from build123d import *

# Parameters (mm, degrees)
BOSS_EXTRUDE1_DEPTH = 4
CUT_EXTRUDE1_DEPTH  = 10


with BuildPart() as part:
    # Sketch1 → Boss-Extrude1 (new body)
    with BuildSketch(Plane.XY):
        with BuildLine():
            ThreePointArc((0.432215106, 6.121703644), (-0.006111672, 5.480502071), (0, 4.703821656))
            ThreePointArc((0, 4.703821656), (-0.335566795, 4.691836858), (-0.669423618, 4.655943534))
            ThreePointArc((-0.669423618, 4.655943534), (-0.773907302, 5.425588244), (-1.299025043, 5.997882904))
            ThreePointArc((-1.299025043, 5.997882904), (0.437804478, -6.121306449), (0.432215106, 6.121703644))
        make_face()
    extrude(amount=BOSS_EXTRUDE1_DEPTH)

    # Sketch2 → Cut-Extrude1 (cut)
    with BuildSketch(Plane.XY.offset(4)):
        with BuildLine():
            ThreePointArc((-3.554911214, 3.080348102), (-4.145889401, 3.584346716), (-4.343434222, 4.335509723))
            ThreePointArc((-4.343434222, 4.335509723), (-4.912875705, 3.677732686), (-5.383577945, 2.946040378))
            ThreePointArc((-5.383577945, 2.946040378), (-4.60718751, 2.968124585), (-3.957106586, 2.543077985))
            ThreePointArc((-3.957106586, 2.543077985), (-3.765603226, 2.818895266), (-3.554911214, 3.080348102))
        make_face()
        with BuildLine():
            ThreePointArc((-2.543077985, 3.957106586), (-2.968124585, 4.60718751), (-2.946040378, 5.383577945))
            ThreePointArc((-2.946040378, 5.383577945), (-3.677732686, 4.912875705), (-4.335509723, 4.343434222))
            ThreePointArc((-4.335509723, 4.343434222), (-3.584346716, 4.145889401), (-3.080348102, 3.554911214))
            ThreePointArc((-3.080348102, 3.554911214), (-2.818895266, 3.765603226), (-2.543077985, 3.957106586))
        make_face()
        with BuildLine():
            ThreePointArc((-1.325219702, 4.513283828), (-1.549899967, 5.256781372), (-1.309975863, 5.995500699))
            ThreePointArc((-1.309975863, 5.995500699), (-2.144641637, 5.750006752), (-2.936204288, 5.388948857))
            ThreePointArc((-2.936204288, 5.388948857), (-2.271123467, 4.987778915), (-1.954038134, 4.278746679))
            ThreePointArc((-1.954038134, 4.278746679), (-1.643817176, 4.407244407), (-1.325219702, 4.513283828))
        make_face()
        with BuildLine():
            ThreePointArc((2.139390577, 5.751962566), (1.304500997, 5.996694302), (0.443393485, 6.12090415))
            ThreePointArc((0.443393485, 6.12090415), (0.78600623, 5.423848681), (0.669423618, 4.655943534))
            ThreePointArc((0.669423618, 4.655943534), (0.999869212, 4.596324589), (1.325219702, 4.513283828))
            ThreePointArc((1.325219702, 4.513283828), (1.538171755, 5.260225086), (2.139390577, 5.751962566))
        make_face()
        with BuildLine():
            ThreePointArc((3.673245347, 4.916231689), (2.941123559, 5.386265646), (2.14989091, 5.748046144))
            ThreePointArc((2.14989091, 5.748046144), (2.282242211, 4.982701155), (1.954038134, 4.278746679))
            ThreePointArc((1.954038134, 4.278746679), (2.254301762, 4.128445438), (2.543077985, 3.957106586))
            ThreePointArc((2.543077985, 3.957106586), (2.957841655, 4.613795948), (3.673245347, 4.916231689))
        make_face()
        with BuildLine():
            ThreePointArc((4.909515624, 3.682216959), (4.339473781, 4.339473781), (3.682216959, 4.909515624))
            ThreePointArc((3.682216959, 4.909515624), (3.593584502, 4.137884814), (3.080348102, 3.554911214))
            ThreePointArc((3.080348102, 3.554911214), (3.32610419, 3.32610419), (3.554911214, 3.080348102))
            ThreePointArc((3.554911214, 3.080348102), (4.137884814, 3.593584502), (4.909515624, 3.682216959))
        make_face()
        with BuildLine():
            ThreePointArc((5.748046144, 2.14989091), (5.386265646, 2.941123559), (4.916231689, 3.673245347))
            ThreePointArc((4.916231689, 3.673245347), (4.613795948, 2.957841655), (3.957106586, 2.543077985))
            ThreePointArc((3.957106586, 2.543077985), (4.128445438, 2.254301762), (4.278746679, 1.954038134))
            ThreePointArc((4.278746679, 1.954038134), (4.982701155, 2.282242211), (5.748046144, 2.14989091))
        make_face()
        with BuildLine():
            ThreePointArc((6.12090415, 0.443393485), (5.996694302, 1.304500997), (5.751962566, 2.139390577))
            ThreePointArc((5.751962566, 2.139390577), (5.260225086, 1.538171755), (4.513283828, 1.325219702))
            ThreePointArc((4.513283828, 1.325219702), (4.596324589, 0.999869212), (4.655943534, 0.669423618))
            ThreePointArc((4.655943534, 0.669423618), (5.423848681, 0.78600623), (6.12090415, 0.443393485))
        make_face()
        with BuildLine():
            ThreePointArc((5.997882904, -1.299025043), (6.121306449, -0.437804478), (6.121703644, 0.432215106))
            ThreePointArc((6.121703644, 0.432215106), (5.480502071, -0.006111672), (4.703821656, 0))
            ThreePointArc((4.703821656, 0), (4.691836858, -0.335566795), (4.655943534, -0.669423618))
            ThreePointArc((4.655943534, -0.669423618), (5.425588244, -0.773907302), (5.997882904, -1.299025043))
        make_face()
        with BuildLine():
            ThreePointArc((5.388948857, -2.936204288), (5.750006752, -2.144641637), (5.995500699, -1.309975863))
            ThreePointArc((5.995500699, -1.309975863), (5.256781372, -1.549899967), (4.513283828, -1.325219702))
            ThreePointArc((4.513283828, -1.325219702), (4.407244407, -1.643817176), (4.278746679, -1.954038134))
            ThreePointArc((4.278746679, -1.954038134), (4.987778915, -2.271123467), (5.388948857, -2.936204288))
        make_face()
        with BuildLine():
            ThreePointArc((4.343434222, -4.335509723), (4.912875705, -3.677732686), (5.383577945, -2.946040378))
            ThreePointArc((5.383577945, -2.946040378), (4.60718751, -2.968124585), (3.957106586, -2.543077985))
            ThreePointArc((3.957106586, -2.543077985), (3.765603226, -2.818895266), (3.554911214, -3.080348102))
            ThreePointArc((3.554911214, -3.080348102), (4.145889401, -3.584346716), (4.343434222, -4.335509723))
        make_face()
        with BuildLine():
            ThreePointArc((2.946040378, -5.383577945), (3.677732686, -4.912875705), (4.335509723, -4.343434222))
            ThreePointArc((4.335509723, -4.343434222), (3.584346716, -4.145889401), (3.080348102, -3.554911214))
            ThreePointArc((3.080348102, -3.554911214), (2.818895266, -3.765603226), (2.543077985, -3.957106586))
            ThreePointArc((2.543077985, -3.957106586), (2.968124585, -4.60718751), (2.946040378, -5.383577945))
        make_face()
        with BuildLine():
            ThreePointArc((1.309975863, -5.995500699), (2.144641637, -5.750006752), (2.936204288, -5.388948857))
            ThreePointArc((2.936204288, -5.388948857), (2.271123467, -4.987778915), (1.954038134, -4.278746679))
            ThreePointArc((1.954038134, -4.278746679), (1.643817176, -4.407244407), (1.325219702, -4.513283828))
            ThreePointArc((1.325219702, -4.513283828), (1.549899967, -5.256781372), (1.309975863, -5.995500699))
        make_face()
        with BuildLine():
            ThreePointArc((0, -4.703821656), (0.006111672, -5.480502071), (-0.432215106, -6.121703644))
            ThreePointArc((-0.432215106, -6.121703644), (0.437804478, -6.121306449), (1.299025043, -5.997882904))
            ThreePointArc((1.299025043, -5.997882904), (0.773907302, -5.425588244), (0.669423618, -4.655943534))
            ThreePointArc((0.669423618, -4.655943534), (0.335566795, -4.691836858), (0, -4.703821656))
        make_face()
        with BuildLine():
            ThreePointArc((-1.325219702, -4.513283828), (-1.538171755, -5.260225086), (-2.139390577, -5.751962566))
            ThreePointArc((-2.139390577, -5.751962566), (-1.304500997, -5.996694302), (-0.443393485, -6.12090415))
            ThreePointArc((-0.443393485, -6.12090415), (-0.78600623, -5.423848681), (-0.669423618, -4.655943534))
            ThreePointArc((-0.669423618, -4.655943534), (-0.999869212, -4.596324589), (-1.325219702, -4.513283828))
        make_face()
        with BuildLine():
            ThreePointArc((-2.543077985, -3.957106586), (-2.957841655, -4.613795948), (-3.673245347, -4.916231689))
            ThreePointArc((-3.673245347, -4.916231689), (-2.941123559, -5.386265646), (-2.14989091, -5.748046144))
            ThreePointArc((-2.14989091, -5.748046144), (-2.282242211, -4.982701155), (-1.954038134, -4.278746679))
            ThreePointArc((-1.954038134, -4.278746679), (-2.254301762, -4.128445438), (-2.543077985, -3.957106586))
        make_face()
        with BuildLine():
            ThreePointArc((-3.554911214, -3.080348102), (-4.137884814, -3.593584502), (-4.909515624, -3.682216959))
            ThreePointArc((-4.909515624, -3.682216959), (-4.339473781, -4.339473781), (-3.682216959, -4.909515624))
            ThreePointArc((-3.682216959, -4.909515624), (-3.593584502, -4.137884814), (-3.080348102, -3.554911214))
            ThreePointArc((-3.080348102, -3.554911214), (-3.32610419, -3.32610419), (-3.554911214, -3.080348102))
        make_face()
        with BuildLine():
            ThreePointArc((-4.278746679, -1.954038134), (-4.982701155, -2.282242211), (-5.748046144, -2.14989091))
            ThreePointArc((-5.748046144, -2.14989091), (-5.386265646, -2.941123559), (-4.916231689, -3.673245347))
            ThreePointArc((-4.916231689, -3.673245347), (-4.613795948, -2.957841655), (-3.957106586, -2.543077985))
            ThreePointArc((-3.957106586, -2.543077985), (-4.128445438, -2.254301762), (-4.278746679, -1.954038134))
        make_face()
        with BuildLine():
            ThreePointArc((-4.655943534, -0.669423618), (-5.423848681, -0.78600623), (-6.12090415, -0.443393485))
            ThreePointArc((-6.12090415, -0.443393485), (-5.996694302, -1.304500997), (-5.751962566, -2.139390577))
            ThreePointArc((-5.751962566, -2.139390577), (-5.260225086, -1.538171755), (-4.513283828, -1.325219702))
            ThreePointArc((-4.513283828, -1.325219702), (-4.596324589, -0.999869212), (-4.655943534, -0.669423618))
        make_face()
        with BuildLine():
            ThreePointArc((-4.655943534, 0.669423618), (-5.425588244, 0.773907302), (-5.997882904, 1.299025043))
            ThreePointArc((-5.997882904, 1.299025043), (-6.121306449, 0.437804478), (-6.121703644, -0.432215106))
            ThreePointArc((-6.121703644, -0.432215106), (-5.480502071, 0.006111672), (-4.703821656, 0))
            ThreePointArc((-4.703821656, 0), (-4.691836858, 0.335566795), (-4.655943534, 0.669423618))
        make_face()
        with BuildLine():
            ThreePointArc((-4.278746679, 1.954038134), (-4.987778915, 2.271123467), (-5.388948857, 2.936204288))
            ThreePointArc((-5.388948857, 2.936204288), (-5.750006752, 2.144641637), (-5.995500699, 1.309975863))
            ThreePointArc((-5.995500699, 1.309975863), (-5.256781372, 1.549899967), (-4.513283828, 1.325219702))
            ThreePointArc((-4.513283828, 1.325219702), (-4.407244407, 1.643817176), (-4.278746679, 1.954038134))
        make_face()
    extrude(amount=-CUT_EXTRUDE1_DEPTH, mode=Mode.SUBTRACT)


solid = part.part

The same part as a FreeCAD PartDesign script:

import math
import FreeCAD as App
import Part
import Sketcher
from FreeCAD import Vector
Q = App.Units.Quantity

doc = App.newDocument("Part")
params = doc.addObject("Spreadsheet::Sheet", "Params")
for row, (alias, value) in enumerate([
    ("pad1_length", "4 mm"),
    ("pocket1_length", "10 mm"),
], start=1):
    params.set(f"A{row}", alias)
    params.set(f"B{row}", "=" + value)
    params.setAlias(f"B{row}", alias)

body = doc.addObject("PartDesign::Body", "Body")

# Sketch on XY plane
sketch1 = body.newObject("Sketcher::SketchObject", "Sketch")
sketch1.AttachmentSupport = (doc.getObject("XY_Plane"), [""])
sketch1.MapMode = "FlatFace"
sketch1.addGeometry([
    Part.ArcOfCircle(Part.Circle(Vector(1.2, 5.1, 0), Vector(0, 0, 1), 1.3), math.radians(128), math.radians(198)),
    Part.ArcOfCircle(Part.Circle(Vector(0, 0, 0), Vector(0, 0, 1), 4.7), math.radians(90), math.radians(98.18)),
    Part.ArcOfCircle(Part.Circle(Vector(-1.9, 4.9, 0), Vector(0, 0, 1), 1.3), math.radians(-10), math.radians(60)),
    Part.ArcOfCircle(Part.Circle(Vector(0, 0, 0), Vector(0, 0, 1), 6.1), math.radians(102), math.radians(446)),
], False)
sketch1.addConstraint([
    Sketcher.Constraint("Coincident", 0, 2, 1, 1),
    Sketcher.Constraint("Coincident", 1, 2, 2, 1),
    Sketcher.Constraint("Coincident", 2, 2, 3, 1),
    Sketcher.Constraint("Coincident", 3, 2, 0, 1),
    Sketcher.Constraint("Coincident", 1, 3, -1, 1),
    Sketcher.Constraint("Coincident", 3, 3, -1, 1),
    Sketcher.Constraint("Equal", 0, 2),
    Sketcher.Constraint("PointOnObject", 0, 2, -2),
    Sketcher.Constraint("Radius", 0, Q("1.298391 mm")),
    Sketcher.Constraint("Radius", 1, Q("4.703821 mm")),
    Sketcher.Constraint("Radius", 3, Q("6.136943 mm")),
    Sketcher.Constraint("DistanceY", -1, 1, 2, 3, Q("4.8741 mm")),
    Sketcher.Constraint("DistanceX", 2, 2, 1, 2, Q("0.629601 mm")),
    Sketcher.Constraint("DistanceY", -1, 1, 0, 3, Q("5.101911 mm")),
])
pad1 = body.newObject("PartDesign::Pad", "Pad")
pad1.Profile = sketch1
pad1.setExpression("Length", "Params.pad1_length")

# Sketch on XY plane
sketch2 = body.newObject("Sketcher::SketchObject", "Sketch001")
sketch2.AttachmentSupport = (doc.getObject("XY_Plane"), [""])
sketch2.MapMode = "FlatFace"
sketch2.AttachmentOffset = App.Placement(Vector(0, 0, 4), App.Rotation())
sketch2.addGeometry([
    Part.ArcOfCircle(Part.Circle(Vector(-3, 4.3, 0), Vector(0, 0, 1), 1.3), math.radians(177), math.radians(247)),  # 0
    Part.ArcOfCircle(Part.Circle(Vector(0, 0, 0), Vector(0, 0, 1), 6.1), math.radians(135.05), math.radians(151.31)),  # 1
    Part.ArcOfCircle(Part.Circle(Vector(-5, 1.7, 0), Vector(0, 0, 1), 1.3), math.radians(39), math.radians(109)),  # 2
    Part.ArcOfCircle(Part.Circle(Vector(0, 0, 0), Vector(0, 0, 1), 4.7), math.radians(139.09), math.radians(147.27)),  # 3
    Part.ArcOfCircle(Part.Circle(Vector(-1.7, 5, 0), Vector(0, 0, 1), 1.3), math.radians(161), math.radians(231)),  # 4
    Part.ArcOfCircle(Part.Circle(Vector(0, 0, 0), Vector(0, 0, 1), 6.1), math.radians(118.69), math.radians(134.95)),  # 5
    Part.ArcOfCircle(Part.Circle(Vector(-4.3, 3, 0), Vector(0, 0, 1), 1.3), math.radians(23), math.radians(93)),  # 6
    Part.ArcOfCircle(Part.Circle(Vector(0, 0, 0), Vector(0, 0, 1), 4.7), math.radians(122.73), math.radians(130.91)),  # 7
    Part.ArcOfCircle(Part.Circle(Vector(-0.3, 5.2, 0), Vector(0, 0, 1), 1.3), math.radians(145), math.radians(214)),  # 8
    Part.ArcOfCircle(Part.Circle(Vector(0, 0, 0), Vector(0, 0, 1), 6.1), math.radians(102.33), math.radians(118.58)),  # 9
    Part.ArcOfCircle(Part.Circle(Vector(-3.2, 4.1, 0), Vector(0, 0, 1), 1.3), math.radians(7), math.radians(76)),  # 10
    Part.ArcOfCircle(Part.Circle(Vector(0, 0, 0), Vector(0, 0, 1), 4.7), math.radians(106.36), math.radians(114.55)),  # 11
    Part.ArcOfCircle(Part.Circle(Vector(0, 0, 0), Vector(0, 0, 1), 6.1), math.radians(69.6), math.radians(85.86)),  # 12
    Part.ArcOfCircle(Part.Circle(Vector(-0.5, 5.2, 0), Vector(0, 0, 1), 1.3), math.radians(-26), math.radians(44)),  # 13
    Part.ArcOfCircle(Part.Circle(Vector(0, 0, 0), Vector(0, 0, 1), 4.7), math.radians(73.64), math.radians(81.82)),  # 14
    Part.ArcOfCircle(Part.Circle(Vector(2.6, 4.5, 0), Vector(0, 0, 1), 1.3), math.radians(112), math.radians(181)),  # 15
    Part.ArcOfCircle(Part.Circle(Vector(0, 0, 0), Vector(0, 0, 1), 6.1), math.radians(53.23), math.radians(69.49)),  # 16
    Part.ArcOfCircle(Part.Circle(Vector(1, 5.2, 0), Vector(0, 0, 1), 1.3), math.radians(-42), math.radians(27)),  # 17
    Part.ArcOfCircle(Part.Circle(Vector(0, 0, 0), Vector(0, 0, 1), 4.7), math.radians(57.27), math.radians(65.45)),  # 18
    Part.ArcOfCircle(Part.Circle(Vector(3.8, 3.6, 0), Vector(0, 0, 1), 1.3), math.radians(96), math.radians(165)),  # 19
    Part.ArcOfCircle(Part.Circle(Vector(0, 0, 0), Vector(0, 0, 1), 6.1), math.radians(36.87), math.radians(53.13)),  # 20
    Part.ArcOfCircle(Part.Circle(Vector(2.4, 4.7, 0), Vector(0, 0, 1), 1.3), math.radians(-59), math.radians(11)),  # 21
    Part.ArcOfCircle(Part.Circle(Vector(0, 0, 0), Vector(0, 0, 1), 4.7), math.radians(40.91), math.radians(49.09)),  # 22
    Part.ArcOfCircle(Part.Circle(Vector(4.7, 2.4, 0), Vector(0, 0, 1), 1.3), math.radians(79), math.radians(149)),  # 23
    Part.ArcOfCircle(Part.Circle(Vector(0, 0, 0), Vector(0, 0, 1), 6.1), math.radians(20.51), math.radians(36.77)),  # 24
    Part.ArcOfCircle(Part.Circle(Vector(3.6, 3.8, 0), Vector(0, 0, 1), 1.3), math.radians(-75), math.radians(-6)),  # 25
    Part.ArcOfCircle(Part.Circle(Vector(0, 0, 0), Vector(0, 0, 1), 4.7), math.radians(24.55), math.radians(32.73)),  # 26
    Part.ArcOfCircle(Part.Circle(Vector(5.2, 1, 0), Vector(0, 0, 1), 1.3), math.radians(63), math.radians(132)),  # 27
    Part.ArcOfCircle(Part.Circle(Vector(0, 0, 0), Vector(0, 0, 1), 6.1), math.radians(4.14), math.radians(20.4)),  # 28
    Part.ArcOfCircle(Part.Circle(Vector(4.5, 2.6, 0), Vector(0, 0, 1), 1.3), math.radians(-91), math.radians(-22)),  # 29
    Part.ArcOfCircle(Part.Circle(Vector(0, 0, 0), Vector(0, 0, 1), 4.7), math.radians(8.18), math.radians(16.36)),  # 30
    Part.ArcOfCircle(Part.Circle(Vector(5.2, -0.5, 0), Vector(0, 0, 1), 1.3), math.radians(46), math.radians(116)),  # 31
    Part.ArcOfCircle(Part.Circle(Vector(0, 0, 0), Vector(0, 0, 1), 6.1), math.radians(-12.22), math.radians(4.04)),  # 32
    Part.ArcOfCircle(Part.Circle(Vector(5.1, 1.2, 0), Vector(0, 0, 1), 1.3), math.radians(-108), math.radians(-38)),  # 33
    Part.ArcOfCircle(Part.Circle(Vector(0, 0, 0), Vector(0, 0, 1), 4.7), math.radians(-8.18), math.radians(0)),  # 34
    Part.ArcOfCircle(Part.Circle(Vector(4.9, -1.9, 0), Vector(0, 0, 1), 1.3), math.radians(30), math.radians(100)),  # 35
    Part.ArcOfCircle(Part.Circle(Vector(0, 0, 0), Vector(0, 0, 1), 6.1), math.radians(-28.58), math.radians(-12.33)),  # 36
    Part.ArcOfCircle(Part.Circle(Vector(5.2, -0.3, 0), Vector(0, 0, 1), 1.3), math.radians(-124), math.radians(-55)),  # 37
    Part.ArcOfCircle(Part.Circle(Vector(0, 0, 0), Vector(0, 0, 1), 4.7), math.radians(-24.55), math.radians(-16.36)),  # 38
    Part.ArcOfCircle(Part.Circle(Vector(4.1, -3.2, 0), Vector(0, 0, 1), 1.3), math.radians(14), math.radians(83)),  # 39
    Part.ArcOfCircle(Part.Circle(Vector(0, 0, 0), Vector(0, 0, 1), 6.1), math.radians(-44.95), math.radians(-28.69)),  # 40
    Part.ArcOfCircle(Part.Circle(Vector(5, -1.7, 0), Vector(0, 0, 1), 1.3), math.radians(-141), math.radians(-71)),  # 41
    Part.ArcOfCircle(Part.Circle(Vector(0, 0, 0), Vector(0, 0, 1), 4.7), math.radians(-40.91), math.radians(-32.73)),  # 42
    Part.ArcOfCircle(Part.Circle(Vector(3, -4.3, 0), Vector(0, 0, 1), 1.3), math.radians(-3), math.radians(67)),  # 43
    Part.ArcOfCircle(Part.Circle(Vector(0, 0, 0), Vector(0, 0, 1), 6.1), math.radians(-61.31), math.radians(-45.05)),  # 44
    Part.ArcOfCircle(Part.Circle(Vector(4.3, -3, 0), Vector(0, 0, 1), 1.3), math.radians(-157), math.radians(-87)),  # 45
    Part.ArcOfCircle(Part.Circle(Vector(0, 0, 0), Vector(0, 0, 1), 4.7), math.radians(-57.27), math.radians(-49.09)),  # 46
    Part.ArcOfCircle(Part.Circle(Vector(1.7, -5, 0), Vector(0, 0, 1), 1.3), math.radians(-19), math.radians(51)),  # 47
    Part.ArcOfCircle(Part.Circle(Vector(0, 0, 0), Vector(0, 0, 1), 6.1), math.radians(-77.67), math.radians(-61.42)),  # 48
    Part.ArcOfCircle(Part.Circle(Vector(3.2, -4.1, 0), Vector(0, 0, 1), 1.3), math.radians(-173), math.radians(-104)),  # 49
    Part.ArcOfCircle(Part.Circle(Vector(0, 0, 0), Vector(0, 0, 1), 4.7), math.radians(-73.64), math.radians(-65.45)),  # 50
    Part.ArcOfCircle(Part.Circle(Vector(0.3, -5.2, 0), Vector(0, 0, 1), 1.3), math.radians(-35), math.radians(34)),  # 51
    Part.ArcOfCircle(Part.Circle(Vector(-1.2, -5.1, 0), Vector(0, 0, 1), 1.3), math.radians(-52), math.radians(18)),  # 52
    Part.ArcOfCircle(Part.Circle(Vector(0, 0, 0), Vector(0, 0, 1), 6.1), math.radians(-94.04), math.radians(-77.78)),  # 53
    Part.ArcOfCircle(Part.Circle(Vector(1.9, -4.9, 0), Vector(0, 0, 1), 1.3), math.radians(170), math.radians(240)),  # 54
    Part.ArcOfCircle(Part.Circle(Vector(0, 0, 0), Vector(0, 0, 1), 4.7), math.radians(-90), math.radians(-81.82)),  # 55
    Part.ArcOfCircle(Part.Circle(Vector(-2.6, -4.5, 0), Vector(0, 0, 1), 1.3), math.radians(-68), math.radians(1)),  # 56
    Part.ArcOfCircle(Part.Circle(Vector(0, 0, 0), Vector(0, 0, 1), 6.1), math.radians(-110.4), math.radians(-94.14)),  # 57
    Part.ArcOfCircle(Part.Circle(Vector(0.5, -5.2, 0), Vector(0, 0, 1), 1.3), math.radians(154), math.radians(224)),  # 58
    Part.ArcOfCircle(Part.Circle(Vector(0, 0, 0), Vector(0, 0, 1), 4.7), math.radians(-106.36), math.radians(-98.18)),  # 59
    Part.ArcOfCircle(Part.Circle(Vector(-3.8, -3.6, 0), Vector(0, 0, 1), 1.3), math.radians(-84), math.radians(-15)),  # 60
    Part.ArcOfCircle(Part.Circle(Vector(0, 0, 0), Vector(0, 0, 1), 6.1), math.radians(-126.77), math.radians(-110.51)),  # 61
    Part.ArcOfCircle(Part.Circle(Vector(-1, -5.2, 0), Vector(0, 0, 1), 1.3), math.radians(138), math.radians(207)),  # 62
    Part.ArcOfCircle(Part.Circle(Vector(0, 0, 0), Vector(0, 0, 1), 4.7), math.radians(-122.73), math.radians(-114.55)),  # 63
    Part.ArcOfCircle(Part.Circle(Vector(-4.7, -2.4, 0), Vector(0, 0, 1), 1.3), math.radians(-101), math.radians(-31)),  # 64
    Part.ArcOfCircle(Part.Circle(Vector(0, 0, 0), Vector(0, 0, 1), 6.1), math.radians(-143.13), math.radians(-126.87)),  # 65
    Part.ArcOfCircle(Part.Circle(Vector(-2.4, -4.7, 0), Vector(0, 0, 1), 1.3), math.radians(121), math.radians(191)),  # 66
    Part.ArcOfCircle(Part.Circle(Vector(0, 0, 0), Vector(0, 0, 1), 4.7), math.radians(-139.09), math.radians(-130.91)),  # 67
    Part.ArcOfCircle(Part.Circle(Vector(-5.2, -1, 0), Vector(0, 0, 1), 1.3), math.radians(-117), math.radians(-48)),  # 68
    Part.ArcOfCircle(Part.Circle(Vector(0, 0, 0), Vector(0, 0, 1), 6.1), math.radians(-159.49), math.radians(-143.23)),  # 69
    Part.ArcOfCircle(Part.Circle(Vector(-3.6, -3.8, 0), Vector(0, 0, 1), 1.3), math.radians(105), math.radians(174)),  # 70
    Part.ArcOfCircle(Part.Circle(Vector(0, 0, 0), Vector(0, 0, 1), 4.7), math.radians(-155.45), math.radians(-147.27)),  # 71
    Part.ArcOfCircle(Part.Circle(Vector(-5.2, 0.5, 0), Vector(0, 0, 1), 1.3), math.radians(-134), math.radians(-64)),  # 72
    Part.ArcOfCircle(Part.Circle(Vector(0, 0, 0), Vector(0, 0, 1), 6.1), math.radians(-175.86), math.radians(-159.6)),  # 73
    Part.ArcOfCircle(Part.Circle(Vector(-4.5, -2.6, 0), Vector(0, 0, 1), 1.3), math.radians(89), math.radians(158)),  # 74
    Part.ArcOfCircle(Part.Circle(Vector(0, 0, 0), Vector(0, 0, 1), 4.7), math.radians(-171.82), math.radians(-163.64)),  # 75
    Part.ArcOfCircle(Part.Circle(Vector(-4.9, 1.9, 0), Vector(0, 0, 1), 1.3), math.radians(-150), math.radians(-80)),  # 76
    Part.ArcOfCircle(Part.Circle(Vector(0, 0, 0), Vector(0, 0, 1), 6.1), math.radians(167.78), math.radians(184.04)),  # 77
    Part.ArcOfCircle(Part.Circle(Vector(-5.1, -1.2, 0), Vector(0, 0, 1), 1.3), math.radians(72), math.radians(142)),  # 78
    Part.ArcOfCircle(Part.Circle(Vector(0, 0, 0), Vector(0, 0, 1), 4.7), math.radians(171.82), math.radians(180)),  # 79
    Part.ArcOfCircle(Part.Circle(Vector(-4.1, 3.2, 0), Vector(0, 0, 1), 1.3), math.radians(-166), math.radians(-97)),  # 80
    Part.ArcOfCircle(Part.Circle(Vector(0, 0, 0), Vector(0, 0, 1), 6.1), math.radians(151.42), math.radians(167.67)),  # 81
    Part.ArcOfCircle(Part.Circle(Vector(-5.2, 0.3, 0), Vector(0, 0, 1), 1.3), math.radians(56), math.radians(125)),  # 82
    Part.ArcOfCircle(Part.Circle(Vector(0, 0, 0), Vector(0, 0, 1), 4.7), math.radians(155.45), math.radians(163.64)),  # 83
], False)
sketch2.addConstraint([
    Sketcher.Constraint("Coincident", 0, 1, 1, 1),
    Sketcher.Constraint("Coincident", 1, 2, 2, 2),
    Sketcher.Constraint("Coincident", 2, 1, 3, 2),
    Sketcher.Constraint("Coincident", 3, 1, 0, 2),
    Sketcher.Constraint("Coincident", 4, 1, 5, 1),
    Sketcher.Constraint("Coincident", 5, 2, 6, 2),
    Sketcher.Constraint("Coincident", 6, 1, 7, 2),
    Sketcher.Constraint("Coincident", 7, 1, 4, 2),
    Sketcher.Constraint("Coincident", 8, 1, 9, 1),
    Sketcher.Constraint("Coincident", 9, 2, 10, 2),
    Sketcher.Constraint("Coincident", 10, 1, 11, 2),
    Sketcher.Constraint("Coincident", 11, 1, 8, 2),
    Sketcher.Constraint("Coincident", 12, 2, 13, 2),
    Sketcher.Constraint("Coincident", 13, 1, 14, 2),
    Sketcher.Constraint("Coincident", 14, 1, 15, 2),
    Sketcher.Constraint("Coincident", 15, 1, 12, 1),
    Sketcher.Constraint("Coincident", 16, 2, 17, 2),
    Sketcher.Constraint("Coincident", 17, 1, 18, 2),
    Sketcher.Constraint("Coincident", 18, 1, 19, 2),
    Sketcher.Constraint("Coincident", 19, 1, 16, 1),
    Sketcher.Constraint("Coincident", 20, 2, 21, 2),
    Sketcher.Constraint("Coincident", 21, 1, 22, 2),
    Sketcher.Constraint("Coincident", 22, 1, 23, 2),
    Sketcher.Constraint("Coincident", 23, 1, 20, 1),
    Sketcher.Constraint("Coincident", 24, 2, 25, 2),
    Sketcher.Constraint("Coincident", 25, 1, 26, 2),
    Sketcher.Constraint("Coincident", 26, 1, 27, 2),
    Sketcher.Constraint("Coincident", 27, 1, 24, 1),
    Sketcher.Constraint("Coincident", 28, 2, 29, 2),
    Sketcher.Constraint("Coincident", 29, 1, 30, 2),
    Sketcher.Constraint("Coincident", 30, 1, 31, 2),
    Sketcher.Constraint("Coincident", 31, 1, 28, 1),
    Sketcher.Constraint("Coincident", 32, 2, 33, 2),
    Sketcher.Constraint("Coincident", 33, 1, 34, 2),
    Sketcher.Constraint("Coincident", 34, 1, 35, 2),
    Sketcher.Constraint("Coincident", 35, 1, 32, 1),
    Sketcher.Constraint("Coincident", 36, 2, 37, 2),
    Sketcher.Constraint("Coincident", 37, 1, 38, 2),
    Sketcher.Constraint("Coincident", 38, 1, 39, 2),
    Sketcher.Constraint("Coincident", 39, 1, 36, 1),
    Sketcher.Constraint("Coincident", 40, 2, 41, 2),
    Sketcher.Constraint("Coincident", 41, 1, 42, 2),
    Sketcher.Constraint("Coincident", 42, 1, 43, 2),
    Sketcher.Constraint("Coincident", 43, 1, 40, 1),
    Sketcher.Constraint("Coincident", 44, 2, 45, 2),
    Sketcher.Constraint("Coincident", 45, 1, 46, 2),
    Sketcher.Constraint("Coincident", 46, 1, 47, 2),
    Sketcher.Constraint("Coincident", 47, 1, 44, 1),
    Sketcher.Constraint("Coincident", 48, 2, 49, 2),
    Sketcher.Constraint("Coincident", 49, 1, 50, 2),
    Sketcher.Constraint("Coincident", 50, 1, 51, 2),
    Sketcher.Constraint("Coincident", 51, 1, 48, 1),
    Sketcher.Constraint("Coincident", 52, 1, 53, 1),
    Sketcher.Constraint("Coincident", 53, 2, 54, 2),
    Sketcher.Constraint("Coincident", 54, 1, 55, 2),
    Sketcher.Constraint("Coincident", 55, 1, 52, 2),
    Sketcher.Constraint("Coincident", 56, 1, 57, 1),
    Sketcher.Constraint("Coincident", 57, 2, 58, 2),
    Sketcher.Constraint("Coincident", 58, 1, 59, 2),
    Sketcher.Constraint("Coincident", 59, 1, 56, 2),
    Sketcher.Constraint("Coincident", 60, 1, 61, 1),
    Sketcher.Constraint("Coincident", 61, 2, 62, 2),
    Sketcher.Constraint("Coincident", 62, 1, 63, 2),
    Sketcher.Constraint("Coincident", 63, 1, 60, 2),
    Sketcher.Constraint("Coincident", 64, 1, 65, 1),
    Sketcher.Constraint("Coincident", 65, 2, 66, 2),
    Sketcher.Constraint("Coincident", 66, 1, 67, 2),
    Sketcher.Constraint("Coincident", 67, 1, 64, 2),
    Sketcher.Constraint("Coincident", 68, 1, 69, 1),
    Sketcher.Constraint("Coincident", 69, 2, 70, 2),
    Sketcher.Constraint("Coincident", 70, 1, 71, 2),
    Sketcher.Constraint("Coincident", 71, 1, 68, 2),
    Sketcher.Constraint("Coincident", 72, 1, 73, 1),
    Sketcher.Constraint("Coincident", 73, 2, 74, 2),
    Sketcher.Constraint("Coincident", 74, 1, 75, 2),
    Sketcher.Constraint("Coincident", 75, 1, 72, 2),
    Sketcher.Constraint("Coincident", 76, 1, 77, 1),
    Sketcher.Constraint("Coincident", 77, 2, 78, 2),
    Sketcher.Constraint("Coincident", 78, 1, 79, 2),
    Sketcher.Constraint("Coincident", 79, 1, 76, 2),
    Sketcher.Constraint("Coincident", 80, 1, 81, 1),
    Sketcher.Constraint("Coincident", 81, 2, 82, 2),
    Sketcher.Constraint("Coincident", 82, 1, 83, 2),
    Sketcher.Constraint("Coincident", 83, 1, 80, 2),
    Sketcher.Constraint("Coincident", 1, 3, -1, 1),
    Sketcher.Constraint("Coincident", 3, 3, -1, 1),
    Sketcher.Constraint("Coincident", 5, 3, -1, 1),
    Sketcher.Constraint("Coincident", 7, 3, -1, 1),
    Sketcher.Constraint("Coincident", 9, 3, -1, 1),
    Sketcher.Constraint("Coincident", 11, 3, -1, 1),
    Sketcher.Constraint("Coincident", 12, 3, -1, 1),
    Sketcher.Constraint("Coincident", 14, 3, -1, 1),
    Sketcher.Constraint("Coincident", 16, 3, -1, 1),
    Sketcher.Constraint("Coincident", 18, 3, -1, 1),
    Sketcher.Constraint("Coincident", 20, 3, -1, 1),
    Sketcher.Constraint("Coincident", 22, 3, -1, 1),
    Sketcher.Constraint("Coincident", 24, 3, -1, 1),
    Sketcher.Constraint("Coincident", 26, 3, -1, 1),
    Sketcher.Constraint("Coincident", 28, 3, -1, 1),
    Sketcher.Constraint("Coincident", 30, 3, -1, 1),
    Sketcher.Constraint("Coincident", 32, 3, -1, 1),
    Sketcher.Constraint("Coincident", 34, 3, -1, 1),
    Sketcher.Constraint("Coincident", 36, 3, -1, 1),
    Sketcher.Constraint("Coincident", 38, 3, -1, 1),
    Sketcher.Constraint("Coincident", 40, 3, -1, 1),
    Sketcher.Constraint("Coincident", 42, 3, -1, 1),
    Sketcher.Constraint("Coincident", 44, 3, -1, 1),
    Sketcher.Constraint("Coincident", 46, 3, -1, 1),
    Sketcher.Constraint("Coincident", 48, 3, -1, 1),
    Sketcher.Constraint("Coincident", 50, 3, -1, 1),
    Sketcher.Constraint("Coincident", 53, 3, -1, 1),
    Sketcher.Constraint("Coincident", 55, 3, -1, 1),
    Sketcher.Constraint("Coincident", 57, 3, -1, 1),
    Sketcher.Constraint("Coincident", 59, 3, -1, 1),
    Sketcher.Constraint("Coincident", 61, 3, -1, 1),
    Sketcher.Constraint("Coincident", 63, 3, -1, 1),
    Sketcher.Constraint("Coincident", 65, 3, -1, 1),
    Sketcher.Constraint("Coincident", 67, 3, -1, 1),
    Sketcher.Constraint("Coincident", 69, 3, -1, 1),
    Sketcher.Constraint("Coincident", 71, 3, -1, 1),
    Sketcher.Constraint("Coincident", 73, 3, -1, 1),
    Sketcher.Constraint("Coincident", 75, 3, -1, 1),
    Sketcher.Constraint("Coincident", 77, 3, -1, 1),
    Sketcher.Constraint("Coincident", 79, 3, -1, 1),
    Sketcher.Constraint("Coincident", 81, 3, -1, 1),
    Sketcher.Constraint("Coincident", 83, 3, -1, 1),
    Sketcher.Constraint("Equal", 0, 2),
    Sketcher.Constraint("Equal", 2, 4),
    Sketcher.Constraint("Equal", 1, 5),
    Sketcher.Constraint("Equal", 4, 6),
    Sketcher.Constraint("Equal", 3, 7),
    Sketcher.Constraint("Equal", 6, 8),
    Sketcher.Constraint("Equal", 5, 9),
    Sketcher.Constraint("Equal", 8, 10),
    Sketcher.Constraint("Equal", 7, 11),
    Sketcher.Constraint("Equal", 9, 12),
    Sketcher.Constraint("Equal", 10, 13),
    Sketcher.Constraint("Equal", 11, 14),
    Sketcher.Constraint("Equal", 13, 15),
    Sketcher.Constraint("Equal", 12, 16),
    Sketcher.Constraint("Equal", 15, 17),
    Sketcher.Constraint("Equal", 14, 18),
    Sketcher.Constraint("Equal", 17, 19),
    Sketcher.Constraint("Equal", 16, 20),
    Sketcher.Constraint("Equal", 19, 21),
    Sketcher.Constraint("Equal", 18, 22),
    Sketcher.Constraint("Equal", 21, 23),
    Sketcher.Constraint("Equal", 20, 24),
    Sketcher.Constraint("Equal", 23, 25),
    Sketcher.Constraint("Equal", 22, 26),
    Sketcher.Constraint("Equal", 25, 27),
    Sketcher.Constraint("Equal", 24, 28),
    Sketcher.Constraint("Equal", 27, 29),
    Sketcher.Constraint("Equal", 26, 30),
    Sketcher.Constraint("Equal", 29, 31),
    Sketcher.Constraint("Equal", 28, 32),
    Sketcher.Constraint("Equal", 31, 33),
    Sketcher.Constraint("Equal", 30, 34),
    Sketcher.Constraint("Equal", 33, 35),
    Sketcher.Constraint("Equal", 32, 36),
    Sketcher.Constraint("Equal", 35, 37),
    Sketcher.Constraint("Equal", 34, 38),
    Sketcher.Constraint("Equal", 37, 39),
    Sketcher.Constraint("Equal", 36, 40),
    Sketcher.Constraint("Equal", 39, 41),
    Sketcher.Constraint("Equal", 38, 42),
    Sketcher.Constraint("Equal", 41, 43),
    Sketcher.Constraint("Equal", 40, 44),
    Sketcher.Constraint("Equal", 43, 45),
    Sketcher.Constraint("Equal", 42, 46),
    Sketcher.Constraint("Equal", 45, 47),
    Sketcher.Constraint("Equal", 44, 48),
    Sketcher.Constraint("Equal", 47, 49),
    Sketcher.Constraint("Equal", 46, 50),
    Sketcher.Constraint("Equal", 49, 51),
    Sketcher.Constraint("Equal", 51, 52),
    Sketcher.Constraint("Equal", 48, 53),
    Sketcher.Constraint("Equal", 52, 54),
    Sketcher.Constraint("Equal", 50, 55),
    Sketcher.Constraint("Equal", 54, 56),
    Sketcher.Constraint("Equal", 53, 57),
    Sketcher.Constraint("Equal", 56, 58),
    Sketcher.Constraint("Equal", 55, 59),
    Sketcher.Constraint("Equal", 58, 60),
    Sketcher.Constraint("Equal", 57, 61),
    Sketcher.Constraint("Equal", 60, 62),
    Sketcher.Constraint("Equal", 59, 63),
    Sketcher.Constraint("Equal", 62, 64),
    Sketcher.Constraint("Equal", 61, 65),
    Sketcher.Constraint("Equal", 64, 66),
    Sketcher.Constraint("Equal", 63, 67),
    Sketcher.Constraint("Equal", 66, 68),
    Sketcher.Constraint("Equal", 65, 69),
    Sketcher.Constraint("Equal", 68, 70),
    Sketcher.Constraint("Equal", 67, 71),
    Sketcher.Constraint("Equal", 70, 72),
    Sketcher.Constraint("Equal", 69, 73),
    Sketcher.Constraint("Equal", 72, 74),
    Sketcher.Constraint("Equal", 71, 75),
    Sketcher.Constraint("Equal", 74, 76),
    Sketcher.Constraint("Equal", 73, 77),
    Sketcher.Constraint("Equal", 76, 78),
    Sketcher.Constraint("Equal", 75, 79),
    Sketcher.Constraint("Equal", 78, 80),
    Sketcher.Constraint("Equal", 77, 81),
    Sketcher.Constraint("Equal", 80, 82),
    Sketcher.Constraint("Equal", 79, 83),
    Sketcher.Constraint("Symmetric", 2, 3, 41, 3, -1, 1),
    Sketcher.Constraint("Symmetric", 0, 3, 43, 3, -1, 1),
    Sketcher.Constraint("Symmetric", 6, 3, 45, 3, -1, 1),
    Sketcher.Constraint("Symmetric", 4, 3, 47, 3, -1, 1),
    Sketcher.Constraint("Symmetric", 10, 3, 49, 3, -1, 1),
    Sketcher.Constraint("Symmetric", 8, 3, 51, 3, -1, 1),
    Sketcher.Constraint("Symmetric", 15, 3, 56, 3, -1, 1),
    Sketcher.Constraint("Symmetric", 13, 3, 58, 3, -1, 1),
    Sketcher.Constraint("Symmetric", 19, 3, 60, 3, -1, 1),
    Sketcher.Constraint("Symmetric", 17, 3, 62, 3, -1, 1),
    Sketcher.Constraint("Symmetric", 23, 3, 64, 3, -1, 1),
    Sketcher.Constraint("Symmetric", 21, 3, 66, 3, -1, 1),
    Sketcher.Constraint("Symmetric", 27, 3, 68, 3, -1, 1),
    Sketcher.Constraint("Symmetric", 25, 3, 70, 3, -1, 1),
    Sketcher.Constraint("Symmetric", 31, 3, 72, 3, -1, 1),
    Sketcher.Constraint("Symmetric", 29, 3, 74, 3, -1, 1),
    Sketcher.Constraint("Symmetric", 35, 3, 76, 3, -1, 1),
    Sketcher.Constraint("Symmetric", 33, 3, 78, 3, -1, 1),
    Sketcher.Constraint("Symmetric", 39, 3, 80, 3, -1, 1),
    Sketcher.Constraint("Symmetric", 37, 3, 82, 3, -1, 1),
    Sketcher.Constraint("PointOnObject", 33, 1, -1),
    Sketcher.Constraint("PointOnObject", 55, 1, -2),
    Sketcher.Constraint("Horizontal", 11, 1, 14, 1),
    Sketcher.Constraint("Horizontal", 10, 1, 17, 1),
    Sketcher.Constraint("Horizontal", 7, 1, 18, 1),
    Sketcher.Constraint("Horizontal", 6, 1, 21, 1),
    Sketcher.Constraint("Horizontal", 3, 1, 22, 1),
    Sketcher.Constraint("Horizontal", 2, 1, 25, 1),
    Sketcher.Constraint("Horizontal", 54, 1, 58, 1),
    Sketcher.Constraint("Horizontal", 38, 1, 71, 1),
    Sketcher.Constraint("Horizontal", 37, 1, 74, 1),
    Sketcher.Constraint("Horizontal", 34, 1, 75, 1),
    Sketcher.Constraint("Radius", 0, Q("1.298391 mm")),
    Sketcher.Constraint("Radius", 3, Q("4.703821 mm")),
    Sketcher.Constraint("Radius", 1, Q("6.136943 mm")),
    Sketcher.Constraint("DistanceX", 13, 3, -1, 1, Q("0.4972 mm")),
    Sketcher.Constraint("DistanceY", 31, 3, -1, 1, Q("0.4972 mm")),
    Sketcher.Constraint("DistanceX", -1, 1, 35, 3, Q("4.8741 mm")),
    Sketcher.Constraint("DistanceY", 54, 3, -1, 1, Q("4.8741 mm")),
    Sketcher.Constraint("DistanceY", -1, 1, 8, 1, Q("5.995501 mm")),
    Sketcher.Constraint("DistanceX", -1, 1, 36, 2, Q("5.995501 mm")),
    Sketcher.Constraint("DistanceY", -1, 1, 0, 3, Q("4.27504 mm")),
    Sketcher.Constraint("DistanceX", 6, 3, -1, 1, Q("4.27504 mm")),
    Sketcher.Constraint("DistanceX", 8, 3, -1, 1, Q("0.251578 mm")),
    Sketcher.Constraint("DistanceY", -1, 1, 13, 3, Q("5.225862 mm")),
    Sketcher.Constraint("DistanceX", -1, 1, 15, 3, Q("2.623171 mm")),
    Sketcher.Constraint("DistanceX", -1, 1, 19, 3, Q("3.79797 mm")),
    Sketcher.Constraint("DistanceY", -1, 1, 21, 3, Q("4.665081 mm")),
    Sketcher.Constraint("DistanceX", -1, 1, 23, 3, Q("4.665081 mm")),
    Sketcher.Constraint("DistanceY", -1, 1, 25, 3, Q("3.79797 mm")),
    Sketcher.Constraint("DistanceY", -1, 1, 29, 3, Q("2.623171 mm")),
    Sketcher.Constraint("DistanceX", -1, 1, 31, 3, Q("5.225862 mm")),
    Sketcher.Constraint("DistanceX", -1, 1, 33, 3, Q("5.101911 mm")),
    Sketcher.Constraint("DistanceX", -1, 1, 37, 3, Q("5.243429 mm")),
    Sketcher.Constraint("DistanceY", 52, 3, -1, 1, Q("5.101911 mm")),
    Sketcher.Constraint("DistanceY", -1, 1, 0, 1, Q("4.33551 mm")),
    Sketcher.Constraint("DistanceY", -1, 1, 1, 2, Q("2.94604 mm")),
    Sketcher.Constraint("DistanceX", 4, 1, -1, 1, Q("2.94604 mm")),
    Sketcher.Constraint("DistanceX", 5, 2, -1, 1, Q("4.33551 mm")),
    Sketcher.Constraint("DistanceY", -1, 1, 9, 2, Q("5.388949 mm")),
    Sketcher.Constraint("DistanceX", 10, 1, -1, 1, Q("1.954038 mm")),
    Sketcher.Constraint("DistanceX", -1, 1, 16, 2, Q("2.149891 mm")),
    Sketcher.Constraint("DistanceY", -1, 1, 19, 1, Q("4.916232 mm")),
    Sketcher.Constraint("DistanceX", -1, 1, 24, 2, Q("4.916232 mm")),
    Sketcher.Constraint("DistanceY", -1, 1, 26, 1, Q("1.954038 mm")),
    Sketcher.Constraint("DistanceY", -1, 1, 27, 1, Q("2.149891 mm")),
    Sketcher.Constraint("DistanceX", -1, 1, 39, 1, Q("5.388949 mm")),
])
pocket1 = body.newObject("PartDesign::Pocket", "Pocket")
pocket1.Profile = sketch2
pocket1.setExpression("Length", "Params.pocket1_length")

doc.recompute()
